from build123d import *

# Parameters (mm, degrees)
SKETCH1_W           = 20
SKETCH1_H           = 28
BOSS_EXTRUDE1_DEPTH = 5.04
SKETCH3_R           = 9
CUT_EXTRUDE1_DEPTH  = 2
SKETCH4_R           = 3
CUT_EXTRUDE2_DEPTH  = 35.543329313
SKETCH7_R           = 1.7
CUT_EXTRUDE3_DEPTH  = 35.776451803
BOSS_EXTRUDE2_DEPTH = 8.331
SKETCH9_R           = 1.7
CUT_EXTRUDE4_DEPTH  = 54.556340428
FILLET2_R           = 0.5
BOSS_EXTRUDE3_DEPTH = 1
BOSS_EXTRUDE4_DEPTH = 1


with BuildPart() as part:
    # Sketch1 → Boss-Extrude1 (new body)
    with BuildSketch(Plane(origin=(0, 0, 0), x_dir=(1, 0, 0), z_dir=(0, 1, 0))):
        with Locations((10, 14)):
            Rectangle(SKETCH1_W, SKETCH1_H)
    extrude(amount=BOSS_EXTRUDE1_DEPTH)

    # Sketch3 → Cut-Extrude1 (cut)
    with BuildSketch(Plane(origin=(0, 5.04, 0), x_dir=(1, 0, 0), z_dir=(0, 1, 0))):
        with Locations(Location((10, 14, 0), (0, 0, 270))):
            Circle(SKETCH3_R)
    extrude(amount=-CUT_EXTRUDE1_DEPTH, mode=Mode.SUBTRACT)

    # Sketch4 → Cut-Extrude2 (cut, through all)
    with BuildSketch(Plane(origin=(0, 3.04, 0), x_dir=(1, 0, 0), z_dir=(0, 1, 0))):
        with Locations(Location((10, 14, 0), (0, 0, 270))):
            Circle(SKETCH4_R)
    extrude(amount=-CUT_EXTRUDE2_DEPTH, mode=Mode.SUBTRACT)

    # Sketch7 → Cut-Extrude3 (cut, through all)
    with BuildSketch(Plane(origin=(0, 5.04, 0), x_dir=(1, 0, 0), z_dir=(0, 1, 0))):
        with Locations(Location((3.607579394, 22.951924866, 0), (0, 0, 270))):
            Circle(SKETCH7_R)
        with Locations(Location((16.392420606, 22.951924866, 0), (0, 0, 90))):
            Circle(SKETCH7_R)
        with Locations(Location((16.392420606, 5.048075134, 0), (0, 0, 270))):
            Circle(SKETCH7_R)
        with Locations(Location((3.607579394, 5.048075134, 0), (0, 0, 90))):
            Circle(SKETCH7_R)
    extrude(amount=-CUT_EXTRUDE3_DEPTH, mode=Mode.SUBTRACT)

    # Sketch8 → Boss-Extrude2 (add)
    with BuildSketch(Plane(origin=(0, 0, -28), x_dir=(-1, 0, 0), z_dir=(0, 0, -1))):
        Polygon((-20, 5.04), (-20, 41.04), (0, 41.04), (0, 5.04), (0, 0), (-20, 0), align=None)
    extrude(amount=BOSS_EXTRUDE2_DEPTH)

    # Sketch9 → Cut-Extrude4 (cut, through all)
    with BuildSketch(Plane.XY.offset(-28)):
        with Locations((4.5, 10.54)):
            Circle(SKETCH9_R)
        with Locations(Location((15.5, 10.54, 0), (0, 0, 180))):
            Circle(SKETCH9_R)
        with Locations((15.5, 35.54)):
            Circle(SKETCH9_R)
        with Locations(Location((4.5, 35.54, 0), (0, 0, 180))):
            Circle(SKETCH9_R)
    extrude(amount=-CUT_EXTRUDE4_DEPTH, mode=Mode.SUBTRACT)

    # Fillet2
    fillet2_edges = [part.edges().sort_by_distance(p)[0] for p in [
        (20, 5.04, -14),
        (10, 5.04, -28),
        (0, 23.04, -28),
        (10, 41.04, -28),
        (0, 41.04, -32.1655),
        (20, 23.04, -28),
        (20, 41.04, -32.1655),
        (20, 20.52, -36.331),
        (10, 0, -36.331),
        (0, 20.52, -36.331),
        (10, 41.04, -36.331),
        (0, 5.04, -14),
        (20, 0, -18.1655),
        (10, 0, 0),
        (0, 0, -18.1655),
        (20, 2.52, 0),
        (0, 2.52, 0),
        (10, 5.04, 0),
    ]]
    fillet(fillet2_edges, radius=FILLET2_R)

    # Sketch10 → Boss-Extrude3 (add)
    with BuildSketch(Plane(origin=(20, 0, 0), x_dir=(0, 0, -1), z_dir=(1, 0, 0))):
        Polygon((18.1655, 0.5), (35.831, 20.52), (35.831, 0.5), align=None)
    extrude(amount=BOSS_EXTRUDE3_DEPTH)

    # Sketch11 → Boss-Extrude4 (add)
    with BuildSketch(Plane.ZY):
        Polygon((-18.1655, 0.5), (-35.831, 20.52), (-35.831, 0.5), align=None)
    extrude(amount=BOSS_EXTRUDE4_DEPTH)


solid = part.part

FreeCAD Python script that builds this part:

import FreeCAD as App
import Part
import Sketcher
Q = App.Units.Quantity


def edges_at(feature, points):
    """Names of the edges that pass closest to the given points."""
    edges = feature.Shape.Edges
    near = lambda p: min(range(len(edges)), key=lambda i: edges[i].distToShape(Part.Vertex(*p))[0])
    return sorted({f"Edge{near(p) + 1}" for p in points})

doc = App.newDocument("Part")
body = doc.addObject("PartDesign::Body", "Body")

sketch1 = body.newObject("Sketcher::SketchObject", "Sketch")
sketch1.AttachmentSupport = (doc.getObject("XZ_Plane"), [""])
sketch1.MapMode = "FlatFace"
sketch1.addGeometry([
    Part.LineSegment(App.Vector(0, -28, 0), App.Vector(0, 0, 0)),
    Part.LineSegment(App.Vector(0, 0, 0), App.Vector(20, 0, 0)),
    Part.LineSegment(App.Vector(20, 0, 0), App.Vector(20, -28, 0)),
    Part.LineSegment(App.Vector(20, -28, 0), App.Vector(0, -28, 0)),
], False)
sketch1.addConstraint([
    Sketcher.Constraint("Coincident", 0, 2, 1, 1),
    Sketcher.Constraint("Coincident", 1, 2, 2, 1),
    Sketcher.Constraint("Coincident", 2, 2, 3, 1),
    Sketcher.Constraint("Coincident", 3, 2, 0, 1),
    Sketcher.Constraint("Vertical", 0),
    Sketcher.Constraint("Horizontal", 1),
    Sketcher.Constraint("Vertical", 2),
    Sketcher.Constraint("Horizontal", 3),
    Sketcher.Constraint("Coincident", 0, 2, -1, 1),
    Sketcher.Constraint("DistanceX", 1, 1, 1, 2, Q("20 mm")),
    Sketcher.Constraint("DistanceY", 0, 1, 0, 2, Q("28 mm")),
])
pad1 = body.newObject("PartDesign::Pad", "Pad")
pad1.Profile = sketch1
pad1.Length = 5.04
pad1.Reversed = True

sketch2 = body.newObject("Sketcher::SketchObject", "Sketch001")
sketch2.AttachmentSupport = (doc.getObject("XZ_Plane"), [""])
sketch2.MapMode = "FlatFace"
sketch2.AttachmentOffset = App.Placement(App.Vector(0, 0, -5.04), App.Rotation())
sketch2.addGeometry(Part.Circle(App.Vector(10, -14, 0), App.Vector(0, 0, 1), 9), False)
sketch2.addConstraint([
    Sketcher.Constraint("Diameter", 0, Q("18 mm")),
    Sketcher.Constraint("DistanceX", -1, 1, 0, 3, Q("10 mm")),
    Sketcher.Constraint("DistanceY", 0, 3, -1, 1, Q("14 mm")),
])
pocket1 = body.newObject("PartDesign::Pocket", "Pocket")
pocket1.Profile = sketch2
pocket1.Length = 2
pocket1.Reversed = True

sketch3 = body.newObject("Sketcher::SketchObject", "Sketch002")
sketch3.AttachmentSupport = (doc.getObject("XZ_Plane"), [""])
sketch3.MapMode = "FlatFace"
sketch3.AttachmentOffset = App.Placement(App.Vector(0, 0, -3.04), App.Rotation())
sketch3.addGeometry(Part.Circle(App.Vector(10, -14, 0), App.Vector(0, 0, 1), 3), False)
sketch3.addConstraint([
    Sketcher.Constraint("Diameter", 0, Q("6 mm")),
    Sketcher.Constraint("DistanceX", -1, 1, 0, 3, Q("10 mm")),
    Sketcher.Constraint("DistanceY", 0, 3, -1, 1, Q("14 mm")),
])
pocket2 = body.newObject("PartDesign::Pocket", "Pocket001")
pocket2.Profile = sketch3
pocket2.Type = "ThroughAll"
pocket2.Reversed = True

sketch4 = body.newObject("Sketcher::SketchObject", "Sketch003")
sketch4.AttachmentSupport = (doc.getObject("XZ_Plane"), [""])
sketch4.MapMode = "FlatFace"
sketch4.AttachmentOffset = App.Placement(App.Vector(0, 0, -5.04), App.Rotation())
sketch4.addGeometry([
    Part.Circle(App.Vector(3.6, -23, 0), App.Vector(0, 0, 1), 1.7),
    Part.Circle(App.Vector(16.4, -23, 0), App.Vector(0, 0, 1), 1.7),
    Part.Circle(App.Vector(16.4, -5, 0), App.Vector(0, 0, 1), 1.7),
    Part.Circle(App.Vector(3.6, -5, 0), App.Vector(0, 0, 1), 1.7),
], False)
sketch4.addConstraint([
    Sketcher.Constraint("Equal", 0, 1),
    Sketcher.Constraint("Equal", 1, 2),
    Sketcher.Constraint("Equal", 2, 3),
    Sketcher.Constraint("Horizontal", 0, 3, 1, 3),
    Sketcher.Constraint("Horizontal", 2, 3, 3, 3),
    Sketcher.Constraint("Vertical", 1, 3, 2, 3),
    Sketcher.Constraint("Vertical", 0, 3, 3, 3),
    Sketcher.Constraint("Diameter", 0, Q("3.4 mm")),
    Sketcher.Constraint("DistanceX", -1, 1, 0, 3, Q("3.607579 mm")),
    Sketcher.Constraint("DistanceX", -1, 1, 1, 3, Q("16.392421 mm")),
    Sketcher.Constraint("DistanceY", 1, 3, 2, 3, Q("17.90385 mm")),
    Sketcher.Constraint("DistanceY", 0, 3, -1, 1, Q("22.951925 mm")),
])
pocket3 = body.newObject("PartDesign::Pocket", "Pocket002")
pocket3.Profile = sketch4
pocket3.Type = "ThroughAll"
pocket3.Reversed = True

sketch5 = body.newObject("Sketcher::SketchObject", "Sketch004")
sketch5.AttachmentSupport = (doc.getObject("XY_Plane"), [""])
sketch5.MapMode = "FlatFace"
sketch5.AttachmentOffset = App.Placement(App.Vector(0, 0, -28), App.Rotation())
sketch5.addGeometry([
    Part.LineSegment(App.Vector(20, 41, 0), App.Vector(20, 0, 0)),
    Part.LineSegment(App.Vector(20, 0, 0), App.Vector(0, 0, 0)),
    Part.LineSegment(App.Vector(0, 0, 0), App.Vector(0, 41, 0)),
    Part.LineSegment(App.Vector(0, 41, 0), App.Vector(20, 41, 0)),
], False)
sketch5.addConstraint([
    Sketcher.Constraint("Coincident", 0, 2, 1, 1),
    Sketcher.Constraint("Coincident", 1, 2, 2, 1),
    Sketcher.Constraint("Coincident", 2, 2, 3, 1),
    Sketcher.Constraint("Coincident", 3, 2, 0, 1),
    Sketcher.Constraint("Vertical", 0),
    Sketcher.Constraint("Horizontal", 1),
    Sketcher.Constraint("Vertical", 2),
    Sketcher.Constraint("Horizontal", 3),
    Sketcher.Constraint("Coincident", 1, 2, -1, 1),
    Sketcher.Constraint("DistanceX", 1, 2, 1, 1, Q("20 mm")),
    Sketcher.Constraint("DistanceY", 0, 2, 0, 1, Q("41.04 mm")),
])
pad2 = body.newObject("PartDesign::Pad", "Pad001")
pad2.Profile = sketch5
pad2.Length = 8.331
pad2.Reversed = True

sketch6 = body.newObject("Sketcher::SketchObject", "Sketch005")
sketch6.AttachmentSupport = (doc.getObject("XY_Plane"), [""])
sketch6.MapMode = "FlatFace"
sketch6.AttachmentOffset = App.Placement(App.Vector(0, 0, -28), App.Rotation())
sketch6.addGeometry([
    Part.Circle(App.Vector(4.5, 10.5, 0), App.Vector(0, 0, 1), 1.7),
    Part.Circle(App.Vector(15.5, 10.5, 0), App.Vector(0, 0, 1), 1.7),
    Part.Circle(App.Vector(15.5, 35.5, 0), App.Vector(0, 0, 1), 1.7),
    Part.Circle(App.Vector(4.5, 35.5, 0), App.Vector(0, 0, 1), 1.7),
], False)
sketch6.addConstraint([
    Sketcher.Constraint("Equal", 0, 1),
    Sketcher.Constraint("Equal", 1, 2),
    Sketcher.Constraint("Equal", 2, 3),
    Sketcher.Constraint("Horizontal", 0, 3, 1, 3),
    Sketcher.Constraint("Horizontal", 2, 3, 3, 3),
    Sketcher.Constraint("Vertical", 1, 3, 2, 3),
    Sketcher.Constraint("Vertical", 0, 3, 3, 3),
    Sketcher.Constraint("Diameter", 0, Q("3.4 mm")),
    Sketcher.Constraint("DistanceX", 0, 3, 1, 3, Q("11 mm")),
    Sketcher.Constraint("DistanceY", 1, 3, 2, 3, Q("25 mm")),
    Sketcher.Constraint("DistanceX", -1, 1, 0, 3, Q("4.5 mm")),
    Sketcher.Constraint("DistanceY", -1, 1, 0, 3, Q("10.54 mm")),
])
pocket4 = body.newObject("PartDesign::Pocket", "Pocket003")
pocket4.Profile = sketch6
pocket4.Type = "ThroughAll"
doc.recompute()

fillet = body.newObject("PartDesign::Fillet", "Fillet")
fillet.Base = (pocket4, edges_at(pocket4, [
    (20, 5.04, -14),
    (10, 5.04, -28),
    (0, 23.04, -28),
    (10, 41.04, -28),
    (0, 41.04, -32.166),
    (20, 23.04, -28),
    (20, 41.04, -32.166),
    (20, 20.52, -36.331),
    (10, 0, -36.331),
    (0, 20.52, -36.331),
    (10, 41.04, -36.331),
    (0, 5.04, -14),
    (20, 0, -18.166),
    (10, 0, 0),
    (0, 0, -18.166),
    (20, 2.52, 0),
    (0, 2.52, 0),
    (10, 5.04, 0),
]))
fillet.Radius = 0.5

sketch7 = body.newObject("Sketcher::SketchObject", "Sketch006")
sketch7.AttachmentSupport = (doc.getObject("YZ_Plane"), [""])
sketch7.MapMode = "FlatFace"
sketch7.AttachmentOffset = App.Placement(App.Vector(0, 0, 20), App.Rotation())
sketch7.addGeometry([
    Part.LineSegment(App.Vector(21, -36, 0), App.Vector(0, -18, 0)),
    Part.LineSegment(App.Vector(0, -18, 0), App.Vector(0, -36, 0)),
    Part.LineSegment(App.Vector(0, -36, 0), App.Vector(21, -36, 0)),
], False)
sketch7.addConstraint([
    Sketcher.Constraint("Coincident", 0, 2, 1, 1),
    Sketcher.Constraint("Coincident", 1, 2, 2, 1),
    Sketcher.Constraint("Coincident", 2, 2, 0, 1),
    Sketcher.Constraint("Vertical", 1),
    Sketcher.Constraint("Horizontal", 2),
    Sketcher.Constraint("DistanceX", 2, 1, 2, 2, Q("20.02 mm")),
    Sketcher.Constraint("DistanceX", -1, 1, 0, 2, Q("0.5 mm")),
    Sketcher.Constraint("DistanceY", 1, 2, 1, 1, Q("17.6655 mm")),
    Sketcher.Constraint("DistanceY", 1, 2, -1, 1, Q("35.831 mm")),
])
pad3 = body.newObject("PartDesign::Pad", "Pad002")
pad3.Profile = sketch7
pad3.Length = 1

sketch8 = body.newObject("Sketcher::SketchObject", "Sketch007")
sketch8.AttachmentSupport = (doc.getObject("YZ_Plane"), [""])
sketch8.MapMode = "FlatFace"
sketch8.addGeometry([
    Part.LineSegment(App.Vector(0, -18, 0), App.Vector(21, -36, 0)),
    Part.LineSegment(App.Vector(21, -36, 0), App.Vector(0, -36, 0)),
    Part.LineSegment(App.Vector(0, -36, 0), App.Vector(0, -18, 0)),
], False)
sketch8.addConstraint([
    Sketcher.Constraint("Coincident", 0, 2, 1, 1),
    Sketcher.Constraint("Coincident", 1, 2, 2, 1),
    Sketcher.Constraint("Coincident", 2, 2, 0, 1),
    Sketcher.Constraint("Horizontal", 1),
    Sketcher.Constraint("Vertical", 2),
    Sketcher.Constraint("DistanceX", 1, 2, 1, 1, Q("20.02 mm")),
    Sketcher.Constraint("DistanceX", -1, 1, 1, 2, Q("0.5 mm")),
    Sketcher.Constraint("DistanceY", 2, 1, 2, 2, Q("17.6655 mm")),
    Sketcher.Constraint("DistanceY", 0, 2, -1, 1, Q("35.831 mm")),
])
pad4 = body.newObject("PartDesign::Pad", "Pad003")
pad4.Profile = sketch8
pad4.Length = 1
pad4.Reversed = True

doc.recompute()
